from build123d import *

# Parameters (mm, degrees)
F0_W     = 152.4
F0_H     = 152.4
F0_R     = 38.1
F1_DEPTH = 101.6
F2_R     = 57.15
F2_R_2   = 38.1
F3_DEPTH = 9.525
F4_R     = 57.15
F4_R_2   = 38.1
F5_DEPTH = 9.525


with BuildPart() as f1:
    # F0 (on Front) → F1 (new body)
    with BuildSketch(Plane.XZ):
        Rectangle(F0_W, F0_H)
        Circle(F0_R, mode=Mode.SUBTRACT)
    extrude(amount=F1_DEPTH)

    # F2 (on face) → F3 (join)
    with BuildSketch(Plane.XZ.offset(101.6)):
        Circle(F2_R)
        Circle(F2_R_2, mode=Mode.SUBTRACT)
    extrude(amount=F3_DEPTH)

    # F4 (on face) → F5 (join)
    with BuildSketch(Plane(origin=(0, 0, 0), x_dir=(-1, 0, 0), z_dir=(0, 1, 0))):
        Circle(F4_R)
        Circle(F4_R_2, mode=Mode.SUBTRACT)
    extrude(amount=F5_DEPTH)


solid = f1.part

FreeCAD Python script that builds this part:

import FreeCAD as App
import Part
import Sketcher
Q = App.Units.Quantity

doc = App.newDocument("Part")
params = doc.addObject("Spreadsheet::Sheet", "Params")
for row, (alias, value) in enumerate([
    ("sketch1_diameter", "3 in"),
    ("sketch1_width", "6 in"),
    ("pad1_length", "4 in"),
    ("sketch2_diameter", "3 in"),
    ("sketch2_diameter2", "4.5 in"),
    ("pad2_length", "0.375 in"),
    ("sketch3_diameter", "3 in"),
    ("sketch3_diameter2", "4.5 in"),
    ("pad3_length", "0.375 in"),
], start=1):
    params.set(f"A{row}", alias)
    params.set(f"B{row}", "=" + value)
    params.setAlias(f"B{row}", alias)

body = doc.addObject("PartDesign::Body", "Body")

# Sketch on XZ plane
sketch1 = body.newObject("Sketcher::SketchObject", "Sketch")
sketch1.AttachmentSupport = (doc.getObject("XZ_Plane"), [""])
sketch1.MapMode = "FlatFace"
sketch1.addGeometry([
    Part.LineSegment(App.Vector(-76, 76, 0), App.Vector(-76, -76, 0)),  # 0
    Part.LineSegment(App.Vector(-76, -76, 0), App.Vector(76, -76, 0)),  # 1
    Part.LineSegment(App.Vector(76, -76, 0), App.Vector(76, 76, 0)),  # 2
    Part.LineSegment(App.Vector(76, 76, 0), App.Vector(-76, 76, 0)),  # 3
    Part.Circle(App.Vector(0, 0, 0), App.Vector(0, 0, 1), 38),  # 4
], False)
sketch1.addConstraint([
    Sketcher.Constraint("Coincident", 0, 2, 1, 1),
    Sketcher.Constraint("Coincident", 1, 2, 2, 1),
    Sketcher.Constraint("Coincident", 2, 2, 3, 1),
    Sketcher.Constraint("Coincident", 3, 2, 0, 1),
    Sketcher.Constraint("Vertical", 0),
    Sketcher.Constraint("Horizontal", 1),
    Sketcher.Constraint("Vertical", 2),
    Sketcher.Constraint("Horizontal", 3),
    Sketcher.Constraint("Coincident", 4, 3, -1, 1),
    Sketcher.Constraint("Symmetric", 0, 2, 2, 2, -1, 1),
    Sketcher.Constraint("Equal", 3, 0),
    Sketcher.Constraint("Diameter", 4, Q("3 in")),
    Sketcher.Constraint("DistanceX", 1, 1, 1, 2, Q("6 in")),
])
sketch1.setExpression("Constraints[11]", "Params.sketch1_diameter")
sketch1.setExpression("Constraints[12]", "Params.sketch1_width")
pad1 = body.newObject("PartDesign::Pad", "Pad")
pad1.Profile = sketch1
pad1.setExpression("Length", "Params.pad1_length")

# Sketch on XZ plane
sketch2 = body.newObject("Sketcher::SketchObject", "Sketch001")
sketch2.AttachmentSupport = (doc.getObject("XZ_Plane"), [""])
sketch2.MapMode = "FlatFace"
sketch2.AttachmentOffset = App.Placement(App.Vector(0, 0, 4 * 25.4), App.Rotation())
sketch2.addGeometry([
    Part.Circle(App.Vector(0, 0, 0), App.Vector(0, 0, 1), 57),
    Part.Circle(App.Vector(0, 0, 0), App.Vector(0, 0, 1), 38),
], False)
sketch2.addConstraint([
    Sketcher.Constraint("Coincident", 0, 3, -1, 1),
    Sketcher.Constraint("Coincident", 1, 3, -1, 1),
    Sketcher.Constraint("Diameter", 1, Q("3 in")),
    Sketcher.Constraint("Diameter", 0, Q("4.5 in")),
])
sketch2.setExpression("Constraints[2]", "Params.sketch2_diameter")
sketch2.setExpression("Constraints[3]", "Params.sketch2_diameter2")
pad2 = body.newObject("PartDesign::Pad", "Pad001")
pad2.Profile = sketch2
pad2.setExpression("Length", "Params.pad2_length")

# Sketch on XZ plane
sketch3 = body.newObject("Sketcher::SketchObject", "Sketch002")
sketch3.AttachmentSupport = (doc.getObject("XZ_Plane"), [""])
sketch3.MapMode = "FlatFace"
sketch3.addGeometry([
    Part.Circle(App.Vector(0, 0, 0), App.Vector(0, 0, 1), 57),
    Part.Circle(App.Vector(0, 0, 0), App.Vector(0, 0, 1), 38),
], False)
sketch3.addConstraint([
    Sketcher.Constraint("Coincident", 0, 3, -1, 1),
    Sketcher.Constraint("Coincident", 1, 3, -1, 1),
    Sketcher.Constraint("Diameter", 1, Q("3 in")),
    Sketcher.Constraint("Diameter", 0, Q("4.5 in")),
])
sketch3.setExpression("Constraints[2]", "Params.sketch3_diameter")
sketch3.setExpression("Constraints[3]", "Params.sketch3_diameter2")
pad3 = body.newObject("PartDesign::Pad", "Pad002")
pad3.Profile = sketch3
pad3.setExpression("Length", "Params.pad3_length")
pad3.Reversed = True

doc.recompute()
